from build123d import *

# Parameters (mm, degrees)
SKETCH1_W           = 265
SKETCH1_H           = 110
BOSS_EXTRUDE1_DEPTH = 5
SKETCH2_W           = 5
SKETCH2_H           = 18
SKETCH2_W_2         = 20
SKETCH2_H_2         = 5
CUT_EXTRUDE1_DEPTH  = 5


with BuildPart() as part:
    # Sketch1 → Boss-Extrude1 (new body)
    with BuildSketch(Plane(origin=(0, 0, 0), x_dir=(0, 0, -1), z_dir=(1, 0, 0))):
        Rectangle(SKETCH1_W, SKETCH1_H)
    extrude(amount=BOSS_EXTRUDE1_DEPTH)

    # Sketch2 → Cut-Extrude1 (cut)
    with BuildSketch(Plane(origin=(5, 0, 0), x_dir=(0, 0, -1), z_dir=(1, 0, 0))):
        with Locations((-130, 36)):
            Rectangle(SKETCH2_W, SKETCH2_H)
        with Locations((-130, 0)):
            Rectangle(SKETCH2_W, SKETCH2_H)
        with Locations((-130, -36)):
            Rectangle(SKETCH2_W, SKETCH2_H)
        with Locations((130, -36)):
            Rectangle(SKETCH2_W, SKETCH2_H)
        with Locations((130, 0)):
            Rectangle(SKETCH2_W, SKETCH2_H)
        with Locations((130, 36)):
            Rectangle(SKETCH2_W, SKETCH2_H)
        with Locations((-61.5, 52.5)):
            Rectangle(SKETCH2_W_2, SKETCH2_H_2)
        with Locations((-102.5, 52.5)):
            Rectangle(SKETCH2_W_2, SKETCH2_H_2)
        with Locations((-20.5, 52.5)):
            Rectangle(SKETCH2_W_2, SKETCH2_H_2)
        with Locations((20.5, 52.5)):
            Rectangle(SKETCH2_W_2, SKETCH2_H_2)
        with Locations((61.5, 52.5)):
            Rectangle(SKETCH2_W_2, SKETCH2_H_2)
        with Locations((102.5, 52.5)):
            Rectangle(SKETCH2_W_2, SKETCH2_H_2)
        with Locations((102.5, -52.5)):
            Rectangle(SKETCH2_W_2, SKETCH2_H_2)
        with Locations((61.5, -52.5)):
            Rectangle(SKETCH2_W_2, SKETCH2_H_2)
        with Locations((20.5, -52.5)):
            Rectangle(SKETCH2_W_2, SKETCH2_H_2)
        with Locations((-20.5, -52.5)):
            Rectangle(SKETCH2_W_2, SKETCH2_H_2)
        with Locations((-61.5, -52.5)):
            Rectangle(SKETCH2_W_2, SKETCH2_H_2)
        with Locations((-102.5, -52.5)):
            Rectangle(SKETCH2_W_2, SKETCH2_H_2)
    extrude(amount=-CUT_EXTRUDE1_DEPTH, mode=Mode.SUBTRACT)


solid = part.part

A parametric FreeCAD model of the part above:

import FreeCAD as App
import Part
import Sketcher

doc = App.newDocument("Part")
body = doc.addObject("PartDesign::Body", "Body")

# Sketch on YZ plane
sketch1 = body.newObject("Sketcher::SketchObject", "Sketch")
sketch1.AttachmentSupport = (doc.getObject("YZ_Plane"), [""])
sketch1.MapMode = "FlatFace"
sketch1.addGeometry([
    Part.LineSegment(App.Vector(55, 132, 0), App.Vector(-55, 132, 0)),
    Part.LineSegment(App.Vector(-55, 132, 0), App.Vector(-55, -132, 0)),
    Part.LineSegment(App.Vector(-55, -132, 0), App.Vector(55, -132, 0)),
    Part.LineSegment(App.Vector(55, -132, 0), App.Vector(55, 132, 0)),
], False)
sketch1.addConstraint([
    Sketcher.Constraint("Coincident", 0, 2, 1, 1),
    Sketcher.Constraint("Coincident", 1, 2, 2, 1),
    Sketcher.Constraint("Coincident", 2, 2, 3, 1),
    Sketcher.Constraint("Coincident", 3, 2, 0, 1),
    Sketcher.Constraint("Horizontal", 0),
    Sketcher.Constraint("Vertical", 1),
    Sketcher.Constraint("Horizontal", 2),
    Sketcher.Constraint("Vertical", 3),
    Sketcher.Constraint("Symmetric", 0, 2, 2, 2, -1, 1),
    Sketcher.Constraint("DistanceX", 0, 2, 0, 1, 110.0),
    Sketcher.Constraint("DistanceY", 1, 2, 1, 1, 265.0),
])
pad1 = body.newObject("PartDesign::Pad", "Pad")
pad1.Profile = sketch1
pad1.Length = 5

# Sketch on YZ plane
sketch2 = body.newObject("Sketcher::SketchObject", "Sketch001")
sketch2.AttachmentSupport = (doc.getObject("YZ_Plane"), [""])
sketch2.MapMode = "FlatFace"
sketch2.AttachmentOffset = App.Placement(App.Vector(0, 0, 5), App.Rotation())
sketch2.addGeometry([
    Part.LineSegment(App.Vector(45, 132, 0), App.Vector(27, 132, 0)),  # 0
    Part.LineSegment(App.Vector(27, 132, 0), App.Vector(27, 128, 0)),  # 1
    Part.LineSegment(App.Vector(27, 128, 0), App.Vector(45, 128, 0)),  # 2
    Part.LineSegment(App.Vector(45, 128, 0), App.Vector(45, 132, 0)),  # 3
    Part.LineSegment(App.Vector(9, 132, 0), App.Vector(-9, 132, 0)),  # 4
    Part.LineSegment(App.Vector(-9, 132, 0), App.Vector(-9, 128, 0)),  # 5
    Part.LineSegment(App.Vector(-9, 128, 0), App.Vector(9, 128, 0)),  # 6
    Part.LineSegment(App.Vector(9, 128, 0), App.Vector(9, 132, 0)),  # 7
    Part.LineSegment(App.Vector(-27, 132, 0), App.Vector(-45, 132, 0)),  # 8
    Part.LineSegment(App.Vector(-45, 132, 0), App.Vector(-45, 128, 0)),  # 9
    Part.LineSegment(App.Vector(-45, 128, 0), App.Vector(-27, 128, 0)),  # 10
    Part.LineSegment(App.Vector(-27, 128, 0), App.Vector(-27, 132, 0)),  # 11
    Part.LineSegment(App.Vector(-27, -128, 0), App.Vector(-45, -128, 0)),  # 12
    Part.LineSegment(App.Vector(-45, -128, 0), App.Vector(-45, -132, 0)),  # 13
    Part.LineSegment(App.Vector(-45, -132, 0), App.Vector(-27, -132, 0)),  # 14
    Part.LineSegment(App.Vector(-27, -132, 0), App.Vector(-27, -128, 0)),  # 15
    Part.LineSegment(App.Vector(9, -128, 0), App.Vector(-9, -128, 0)),  # 16
    Part.LineSegment(App.Vector(-9, -128, 0), App.Vector(-9, -132, 0)),  # 17
    Part.LineSegment(App.Vector(-9, -132, 0), App.Vector(9, -132, 0)),  # 18
    Part.LineSegment(App.Vector(9, -132, 0), App.Vector(9, -128, 0)),  # 19
    Part.LineSegment(App.Vector(45, -128, 0), App.Vector(27, -128, 0)),  # 20
    Part.LineSegment(App.Vector(27, -128, 0), App.Vector(27, -132, 0)),  # 21
    Part.LineSegment(App.Vector(27, -132, 0), App.Vector(45, -132, 0)),  # 22
    Part.LineSegment(App.Vector(45, -132, 0), App.Vector(45, -128, 0)),  # 23
    Part.LineSegment(App.Vector(55, 72, 0), App.Vector(50, 72, 0)),  # 24
    Part.LineSegment(App.Vector(50, 72, 0), App.Vector(50, 52, 0)),  # 25
    Part.LineSegment(App.Vector(50, 52, 0), App.Vector(55, 52, 0)),  # 26
    Part.LineSegment(App.Vector(55, 52, 0), App.Vector(55, 72, 0)),  # 27
    Part.LineSegment(App.Vector(55, 112, 0), App.Vector(50, 112, 0)),  # 28
    Part.LineSegment(App.Vector(50, 112, 0), App.Vector(50, 92, 0)),  # 29
    Part.LineSegment(App.Vector(50, 92, 0), App.Vector(55, 92, 0)),  # 30
    Part.LineSegment(App.Vector(55, 92, 0), App.Vector(55, 112, 0)),  # 31
    Part.LineSegment(App.Vector(55, 30, 0), App.Vector(50, 30, 0)),  # 32
    Part.LineSegment(App.Vector(50, 30, 0), App.Vector(50, 10, 0)),  # 33
    Part.LineSegment(App.Vector(50, 10, 0), App.Vector(55, 10, 0)),  # 34
    Part.LineSegment(App.Vector(55, 10, 0), App.Vector(55, 30, 0)),  # 35
    Part.LineSegment(App.Vector(55, -10, 0), App.Vector(50, -10, 0)),  # 36
    Part.LineSegment(App.Vector(50, -10, 0), App.Vector(50, -30, 0)),  # 37
    Part.LineSegment(App.Vector(50, -30, 0), App.Vector(55, -30, 0)),  # 38
    Part.LineSegment(App.Vector(55, -30, 0), App.Vector(55, -10, 0)),  # 39
    Part.LineSegment(App.Vector(55, -52, 0), App.Vector(50, -52, 0)),  # 40
    Part.LineSegment(App.Vector(50, -52, 0), App.Vector(50, -72, 0)),  # 41
    Part.LineSegment(App.Vector(50, -72, 0), App.Vector(55, -72, 0)),  # 42
    Part.LineSegment(App.Vector(55, -72, 0), App.Vector(55, -52, 0)),  # 43
    Part.LineSegment(App.Vector(55, -92, 0), App.Vector(50, -92, 0)),  # 44
    Part.LineSegment(App.Vector(50, -92, 0), App.Vector(50, -112, 0)),  # 45
    Part.LineSegment(App.Vector(50, -112, 0), App.Vector(55, -112, 0)),  # 46
    Part.LineSegment(App.Vector(55, -112, 0), App.Vector(55, -92, 0)),  # 47
    Part.LineSegment(App.Vector(-50, -92, 0), App.Vector(-55, -92, 0)),  # 48
    Part.LineSegment(App.Vector(-55, -92, 0), App.Vector(-55, -112, 0)),  # 49
    Part.LineSegment(App.Vector(-55, -112, 0), App.Vector(-50, -112, 0)),  # 50
    Part.LineSegment(App.Vector(-50, -112, 0), App.Vector(-50, -92, 0)),  # 51
    Part.LineSegment(App.Vector(-50, -52, 0), App.Vector(-55, -52, 0)),  # 52
    Part.LineSegment(App.Vector(-55, -52, 0), App.Vector(-55, -72, 0)),  # 53
    Part.LineSegment(App.Vector(-55, -72, 0), App.Vector(-50, -72, 0)),  # 54
    Part.LineSegment(App.Vector(-50, -72, 0), App.Vector(-50, -52, 0)),  # 55
    Part.LineSegment(App.Vector(-50, -10, 0), App.Vector(-55, -10, 0)),  # 56
    Part.LineSegment(App.Vector(-55, -10, 0), App.Vector(-55, -30, 0)),  # 57
    Part.LineSegment(App.Vector(-55, -30, 0), App.Vector(-50, -30, 0)),  # 58
    Part.LineSegment(App.Vector(-50, -30, 0), App.Vector(-50, -10, 0)),  # 59
    Part.LineSegment(App.Vector(-50, 30, 0), App.Vector(-55, 30, 0)),  # 60
    Part.LineSegment(App.Vector(-55, 30, 0), App.Vector(-55, 10, 0)),  # 61
    Part.LineSegment(App.Vector(-55, 10, 0), App.Vector(-50, 10, 0)),  # 62
    Part.LineSegment(App.Vector(-50, 10, 0), App.Vector(-50, 30, 0)),  # 63
    Part.LineSegment(App.Vector(-50, 72, 0), App.Vector(-55, 72, 0)),  # 64
    Part.LineSegment(App.Vector(-55, 72, 0), App.Vector(-55, 52, 0)),  # 65
    Part.LineSegment(App.Vector(-55, 52, 0), App.Vector(-50, 52, 0)),  # 66
    Part.LineSegment(App.Vector(-50, 52, 0), App.Vector(-50, 72, 0)),  # 67
    Part.LineSegment(App.Vector(-50, 112, 0), App.Vector(-55, 112, 0)),  # 68
    Part.LineSegment(App.Vector(-55, 112, 0), App.Vector(-55, 92, 0)),  # 69
    Part.LineSegment(App.Vector(-55, 92, 0), App.Vector(-50, 92, 0)),  # 70
    Part.LineSegment(App.Vector(-50, 92, 0), App.Vector(-50, 112, 0)),  # 71
], False)
sketch2.addConstraint([
    Sketcher.Constraint("Coincident", 0, 2, 1, 1),
    Sketcher.Constraint("Coincident", 1, 2, 2, 1),
    Sketcher.Constraint("Coincident", 2, 2, 3, 1),
    Sketcher.Constraint("Coincident", 3, 2, 0, 1),
    Sketcher.Constraint("Coincident", 4, 2, 5, 1),
    Sketcher.Constraint("Coincident", 5, 2, 6, 1),
    Sketcher.Constraint("Coincident", 6, 2, 7, 1),
    Sketcher.Constraint("Coincident", 7, 2, 4, 1),
    Sketcher.Constraint("Coincident", 8, 2, 9, 1),
    Sketcher.Constraint("Coincident", 9, 2, 10, 1),
    Sketcher.Constraint("Coincident", 10, 2, 11, 1),
    Sketcher.Constraint("Coincident", 11, 2, 8, 1),
    Sketcher.Constraint("Coincident", 12, 2, 13, 1),
    Sketcher.Constraint("Coincident", 13, 2, 14, 1),
    Sketcher.Constraint("Coincident", 14, 2, 15, 1),
    Sketcher.Constraint("Coincident", 15, 2, 12, 1),
    Sketcher.Constraint("Coincident", 16, 2, 17, 1),
    Sketcher.Constraint("Coincident", 17, 2, 18, 1),
    Sketcher.Constraint("Coincident", 18, 2, 19, 1),
    Sketcher.Constraint("Coincident", 19, 2, 16, 1),
    Sketcher.Constraint("Coincident", 20, 2, 21, 1),
    Sketcher.Constraint("Coincident", 21, 2, 22, 1),
    Sketcher.Constraint("Coincident", 22, 2, 23, 1),
    Sketcher.Constraint("Coincident", 23, 2, 20, 1),
    Sketcher.Constraint("Coincident", 24, 2, 25, 1),
    Sketcher.Constraint("Coincident", 25, 2, 26, 1),
    Sketcher.Constraint("Coincident", 26, 2, 27, 1),
    Sketcher.Constraint("Coincident", 27, 2, 24, 1),
    Sketcher.Constraint("Coincident", 28, 2, 29, 1),
    Sketcher.Constraint("Coincident", 29, 2, 30, 1),
    Sketcher.Constraint("Coincident", 30, 2, 31, 1),
    Sketcher.Constraint("Coincident", 31, 2, 28, 1),
    Sketcher.Constraint("Coincident", 32, 2, 33, 1),
    Sketcher.Constraint("Coincident", 33, 2, 34, 1),
    Sketcher.Constraint("Coincident", 34, 2, 35, 1),
    Sketcher.Constraint("Coincident", 35, 2, 32, 1),
    Sketcher.Constraint("Coincident", 36, 2, 37, 1),
    Sketcher.Constraint("Coincident", 37, 2, 38, 1),
    Sketcher.Constraint("Coincident", 38, 2, 39, 1),
    Sketcher.Constraint("Coincident", 39, 2, 36, 1),
    Sketcher.Constraint("Coincident", 40, 2, 41, 1),
    Sketcher.Constraint("Coincident", 41, 2, 42, 1),
    Sketcher.Constraint("Coincident", 42, 2, 43, 1),
    Sketcher.Constraint("Coincident", 43, 2, 40, 1),
    Sketcher.Constraint("Coincident", 44, 2, 45, 1),
    Sketcher.Constraint("Coincident", 45, 2, 46, 1),
    Sketcher.Constraint("Coincident", 46, 2, 47, 1),
    Sketcher.Constraint("Coincident", 47, 2, 44, 1),
    Sketcher.Constraint("Coincident", 48, 2, 49, 1),
    Sketcher.Constraint("Coincident", 49, 2, 50, 1),
    Sketcher.Constraint("Coincident", 50, 2, 51, 1),
    Sketcher.Constraint("Coincident", 51, 2, 48, 1),
    Sketcher.Constraint("Coincident", 52, 2, 53, 1),
    Sketcher.Constraint("Coincident", 53, 2, 54, 1),
    Sketcher.Constraint("Coincident", 54, 2, 55, 1),
    Sketcher.Constraint("Coincident", 55, 2, 52, 1),
    Sketcher.Constraint("Coincident", 56, 2, 57, 1),
    Sketcher.Constraint("Coincident", 57, 2, 58, 1),
    Sketcher.Constraint("Coincident", 58, 2, 59, 1),
    Sketcher.Constraint("Coincident", 59, 2, 56, 1),
    Sketcher.Constraint("Coincident", 60, 2, 61, 1),
    Sketcher.Constraint("Coincident", 61, 2, 62, 1),
    Sketcher.Constraint("Coincident", 62, 2, 63, 1),
    Sketcher.Constraint("Coincident", 63, 2, 60, 1),
    Sketcher.Constraint("Coincident", 64, 2, 65, 1),
    Sketcher.Constraint("Coincident", 65, 2, 66, 1),
    Sketcher.Constraint("Coincident", 66, 2, 67, 1),
    Sketcher.Constraint("Coincident", 67, 2, 64, 1),
    Sketcher.Constraint("Coincident", 68, 2, 69, 1),
    Sketcher.Constraint("Coincident", 69, 2, 70, 1),
    Sketcher.Constraint("Coincident", 70, 2, 71, 1),
    Sketcher.Constraint("Coincident", 71, 2, 68, 1),
    Sketcher.Constraint("Horizontal", 0),
    Sketcher.Constraint("Vertical", 1),
    Sketcher.Constraint("Horizontal", 2),
    Sketcher.Constraint("Vertical", 3),
    Sketcher.Constraint("Horizontal", 4),
    Sketcher.Constraint("Vertical", 5),
    Sketcher.Constraint("Horizontal", 6),
    Sketcher.Constraint("Vertical", 7),
    Sketcher.Constraint("Horizontal", 8),
    Sketcher.Constraint("Vertical", 9),
    Sketcher.Constraint("Horizontal", 10),
    Sketcher.Constraint("Vertical", 11),
    Sketcher.Constraint("Horizontal", 12),
    Sketcher.Constraint("Vertical", 13),
    Sketcher.Constraint("Horizontal", 14),
    Sketcher.Constraint("Vertical", 15),
    Sketcher.Constraint("Horizontal", 16),
    Sketcher.Constraint("Vertical", 17),
    Sketcher.Constraint("Horizontal", 18),
    Sketcher.Constraint("Vertical", 19),
    Sketcher.Constraint("Horizontal", 20),
    Sketcher.Constraint("Vertical", 21),
    Sketcher.Constraint("Horizontal", 22),
    Sketcher.Constraint("Vertical", 23),
    Sketcher.Constraint("Horizontal", 24),
    Sketcher.Constraint("Vertical", 25),
    Sketcher.Constraint("Horizontal", 26),
    Sketcher.Constraint("Vertical", 27),
    Sketcher.Constraint("Horizontal", 28),
    Sketcher.Constraint("Vertical", 29),
    Sketcher.Constraint("Horizontal", 30),
    Sketcher.Constraint("Vertical", 31),
    Sketcher.Constraint("Horizontal", 32),
    Sketcher.Constraint("Vertical", 33),
    Sketcher.Constraint("Horizontal", 34),
    Sketcher.Constraint("Vertical", 35),
    Sketcher.Constraint("Horizontal", 36),
    Sketcher.Constraint("Vertical", 37),
    Sketcher.Constraint("Horizontal", 38),
    Sketcher.Constraint("Vertical", 39),
    Sketcher.Constraint("Horizontal", 40),
    Sketcher.Constraint("Vertical", 41),
    Sketcher.Constraint("Horizontal", 42),
    Sketcher.Constraint("Vertical", 43),
    Sketcher.Constraint("Horizontal", 44),
    Sketcher.Constraint("Vertical", 45),
    Sketcher.Constraint("Horizontal", 46),
    Sketcher.Constraint("Vertical", 47),
    Sketcher.Constraint("Horizontal", 48),
    Sketcher.Constraint("Vertical", 49),
    Sketcher.Constraint("Horizontal", 50),
    Sketcher.Constraint("Vertical", 51),
    Sketcher.Constraint("Horizontal", 52),
    Sketcher.Constraint("Vertical", 53),
    Sketcher.Constraint("Horizontal", 54),
    Sketcher.Constraint("Vertical", 55),
    Sketcher.Constraint("Horizontal", 56),
    Sketcher.Constraint("Vertical", 57),
    Sketcher.Constraint("Horizontal", 58),
    Sketcher.Constraint("Vertical", 59),
    Sketcher.Constraint("Horizontal", 60),
    Sketcher.Constraint("Vertical", 61),
    Sketcher.Constraint("Horizontal", 62),
    Sketcher.Constraint("Vertical", 63),
    Sketcher.Constraint("Horizontal", 64),
    Sketcher.Constraint("Vertical", 65),
    Sketcher.Constraint("Horizontal", 66),
    Sketcher.Constraint("Vertical", 67),
    Sketcher.Constraint("Horizontal", 68),
    Sketcher.Constraint("Vertical", 69),
    Sketcher.Constraint("Horizontal", 70),
    Sketcher.Constraint("Vertical", 71),
    Sketcher.Constraint("Symmetric", 2, 2, 12, 2, -1, 1),
    Sketcher.Constraint("Symmetric", 0, 2, 14, 2, -1, 1),
    Sketcher.Constraint("Symmetric", 6, 2, 16, 2, -1, 1),
    Sketcher.Constraint("Symmetric", 4, 2, 18, 2, -1, 1),
    Sketcher.Constraint("Symmetric", 10, 2, 20, 2, -1, 1),
    Sketcher.Constraint("Symmetric", 8, 2, 22, 2, -1, 1),
    Sketcher.Constraint("Symmetric", 30, 2, 48, 2, -1, 1),
    Sketcher.Constraint("Symmetric", 28, 2, 50, 2, -1, 1),
    Sketcher.Constraint("Symmetric", 26, 2, 52, 2, -1, 1),
    Sketcher.Constraint("Symmetric", 24, 2, 54, 2, -1, 1),
    Sketcher.Constraint("Symmetric", 34, 2, 56, 2, -1, 1),
    Sketcher.Constraint("Symmetric", 32, 2, 58, 2, -1, 1),
    Sketcher.Constraint("Symmetric", 38, 2, 60, 2, -1, 1),
    Sketcher.Constraint("Symmetric", 36, 2, 62, 2, -1, 1),
    Sketcher.Constraint("Symmetric", 42, 2, 64, 2, -1, 1),
    Sketcher.Constraint("Symmetric", 40, 2, 66, 2, -1, 1),
    Sketcher.Constraint("Symmetric", 46, 2, 68, 2, -1, 1),
    Sketcher.Constraint("Symmetric", 44, 2, 70, 2, -1, 1),
    Sketcher.Constraint("Symmetric", 3, 2, 8, 2, -2),
    Sketcher.Constraint("Symmetric", 1, 2, 10, 2, -2),
    Sketcher.Constraint("Symmetric", 47, 2, 48, 2, -2),
    Sketcher.Constraint("Symmetric", 45, 2, 50, 2, -2),
    Sketcher.Constraint("Symmetric", 43, 2, 52, 2, -2),
    Sketcher.Constraint("Symmetric", 41, 2, 54, 2, -2),
    Sketcher.Constraint("Symmetric", 39, 2, 56, 2, -2),
    Sketcher.Constraint("Symmetric", 37, 2, 58, 2, -2),
    Sketcher.Constraint("Horizontal", 3, 2, 4, 2),
    Sketcher.Constraint("Horizontal", 2, 2, 5, 2),
    Sketcher.Constraint("Vertical", 5, 2, 16, 2),
    Sketcher.Constraint("Vertical", 25, 2, 28, 2),
    Sketcher.Constraint("Vertical", 27, 2, 30, 2),
    Sketcher.Constraint("Vertical", 29, 2, 32, 2),
    Sketcher.Constraint("Vertical", 31, 2, 34, 2),
    Sketcher.Constraint("Equal", 2, 4),
    Sketcher.Constraint("Equal", 70, 1),
    Sketcher.Constraint("Equal", 27, 29),
    Sketcher.Constraint("Equal", 31, 33),
    Sketcher.Constraint("DistanceX", 0, 2, 0, 1, 18.0),
    Sketcher.Constraint("DistanceX", 24, 2, 24, 1, 5.0),
    Sketcher.Constraint("DistanceY", 25, 2, 25, 1, 20.0),
    Sketcher.Constraint("DistanceX", -1, 1, 0, 2, 27.0),
    Sketcher.Constraint("DistanceX", -1, 1, 24, 2, 50.0),
    Sketcher.Constraint("DistanceY", -1, 1, 0, 2, 132.5),
    Sketcher.Constraint("DistanceY", -1, 1, 24, 2, 71.5),
    Sketcher.Constraint("DistanceY", -1, 1, 28, 2, 112.5),
    Sketcher.Constraint("DistanceY", -1, 1, 32, 2, 30.5),
])
pocket1 = body.newObject("PartDesign::Pocket", "Pocket")
pocket1.Profile = sketch2
pocket1.Length = 5

doc.recompute()
